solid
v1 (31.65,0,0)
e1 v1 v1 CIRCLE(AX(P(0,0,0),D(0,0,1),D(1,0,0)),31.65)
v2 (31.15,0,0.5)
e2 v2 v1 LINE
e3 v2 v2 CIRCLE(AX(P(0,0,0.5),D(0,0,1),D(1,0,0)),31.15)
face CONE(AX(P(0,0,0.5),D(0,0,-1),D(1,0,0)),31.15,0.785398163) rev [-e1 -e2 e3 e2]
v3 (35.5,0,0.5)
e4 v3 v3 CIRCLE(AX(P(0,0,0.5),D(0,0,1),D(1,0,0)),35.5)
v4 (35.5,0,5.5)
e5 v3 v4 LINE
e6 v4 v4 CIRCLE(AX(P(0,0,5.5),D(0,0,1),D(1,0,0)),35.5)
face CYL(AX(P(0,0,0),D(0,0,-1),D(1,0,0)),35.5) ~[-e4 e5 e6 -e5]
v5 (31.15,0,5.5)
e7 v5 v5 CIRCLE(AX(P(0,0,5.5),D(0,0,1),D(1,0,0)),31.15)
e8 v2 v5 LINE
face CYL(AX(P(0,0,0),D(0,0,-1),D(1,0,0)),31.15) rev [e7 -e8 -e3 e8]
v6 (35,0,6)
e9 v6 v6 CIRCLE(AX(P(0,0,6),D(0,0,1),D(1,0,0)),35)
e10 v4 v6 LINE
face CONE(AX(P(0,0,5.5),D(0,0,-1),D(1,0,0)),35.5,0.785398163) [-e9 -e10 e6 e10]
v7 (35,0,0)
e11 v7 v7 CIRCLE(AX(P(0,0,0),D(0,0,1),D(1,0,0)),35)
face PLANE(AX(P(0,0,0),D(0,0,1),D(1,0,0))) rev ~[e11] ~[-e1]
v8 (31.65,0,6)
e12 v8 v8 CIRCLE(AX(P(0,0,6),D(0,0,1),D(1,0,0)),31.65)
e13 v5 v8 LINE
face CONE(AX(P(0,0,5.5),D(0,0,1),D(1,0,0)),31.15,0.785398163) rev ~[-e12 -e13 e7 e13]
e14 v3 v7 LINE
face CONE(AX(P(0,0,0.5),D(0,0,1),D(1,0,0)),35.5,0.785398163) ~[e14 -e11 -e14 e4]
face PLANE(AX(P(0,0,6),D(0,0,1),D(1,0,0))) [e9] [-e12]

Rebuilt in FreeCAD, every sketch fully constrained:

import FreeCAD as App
import Part
import Sketcher

V = App.Vector
Q = App.Units.Quantity


def edges_at(feature, points):
    """Names of the edges that pass closest to the given points."""
    edges = feature.Shape.Edges
    near = lambda p: min(range(len(edges)), key=lambda i: edges[i].distToShape(Part.Vertex(*p))[0])
    return sorted({f"Edge{near(p) + 1}" for p in points})

doc = App.newDocument("Part")
params = doc.addObject("Spreadsheet::Sheet", "Params")
for row, (alias, value) in enumerate([
    ("sketch1_diameter", "71 mm"),
    ("sketch1_diameter2", "62.3 mm"),
    ("pad1_length", "6 mm"),
    ("chamfer_size", "0.5 mm"),
], start=1):
    params.set(f"A{row}", alias)
    params.set(f"B{row}", "=" + value)
    params.setAlias(f"B{row}", alias)

body = doc.addObject("PartDesign::Body", "Body")

# Sketch on XY plane
sketch1 = doc.addObject("Sketcher::SketchObject", "Sketch")
body.addObject(sketch1)
sketch1.AttachmentSupport = (doc.XY_Plane, [""])
sketch1.MapMode = "FlatFace"
sketch1.addGeometry([
    Part.Circle(V(0, 0, 0), V(0, 0, 1), 35.5),
    Part.Circle(V(0, 0, 0), V(0, 0, 1), 31.15),
], False)
sketch1.addConstraint([
    Sketcher.Constraint("Coincident", 0, 3, -1, 1),
    Sketcher.Constraint("Coincident", 1, 3, -1, 1),
    Sketcher.Constraint("Diameter", 0, Q("71 mm")),
    Sketcher.Constraint("Diameter", 1, Q("62.3 mm")),
])
sketch1.setExpression("Constraints[2]", "Params.sketch1_diameter")
sketch1.setExpression("Constraints[3]", "Params.sketch1_diameter2")
pad1 = doc.addObject("PartDesign::Pad", "Pad")
body.addObject(pad1)
pad1.Profile = sketch1
pad1.setExpression("Length", "Params.pad1_length")
doc.recompute()

chamfer = doc.addObject("PartDesign::Chamfer", "Chamfer")
body.addObject(chamfer)
chamfer.Base = (pad1, edges_at(pad1, [
    (-31.15, 0, 6),
    (-31.15, 0, 0),
    (-35.5, 0, 6),
    (-35.5, 0, 0),
]))
chamfer.setExpression("Size", "Params.chamfer_size")

doc.recompute()
